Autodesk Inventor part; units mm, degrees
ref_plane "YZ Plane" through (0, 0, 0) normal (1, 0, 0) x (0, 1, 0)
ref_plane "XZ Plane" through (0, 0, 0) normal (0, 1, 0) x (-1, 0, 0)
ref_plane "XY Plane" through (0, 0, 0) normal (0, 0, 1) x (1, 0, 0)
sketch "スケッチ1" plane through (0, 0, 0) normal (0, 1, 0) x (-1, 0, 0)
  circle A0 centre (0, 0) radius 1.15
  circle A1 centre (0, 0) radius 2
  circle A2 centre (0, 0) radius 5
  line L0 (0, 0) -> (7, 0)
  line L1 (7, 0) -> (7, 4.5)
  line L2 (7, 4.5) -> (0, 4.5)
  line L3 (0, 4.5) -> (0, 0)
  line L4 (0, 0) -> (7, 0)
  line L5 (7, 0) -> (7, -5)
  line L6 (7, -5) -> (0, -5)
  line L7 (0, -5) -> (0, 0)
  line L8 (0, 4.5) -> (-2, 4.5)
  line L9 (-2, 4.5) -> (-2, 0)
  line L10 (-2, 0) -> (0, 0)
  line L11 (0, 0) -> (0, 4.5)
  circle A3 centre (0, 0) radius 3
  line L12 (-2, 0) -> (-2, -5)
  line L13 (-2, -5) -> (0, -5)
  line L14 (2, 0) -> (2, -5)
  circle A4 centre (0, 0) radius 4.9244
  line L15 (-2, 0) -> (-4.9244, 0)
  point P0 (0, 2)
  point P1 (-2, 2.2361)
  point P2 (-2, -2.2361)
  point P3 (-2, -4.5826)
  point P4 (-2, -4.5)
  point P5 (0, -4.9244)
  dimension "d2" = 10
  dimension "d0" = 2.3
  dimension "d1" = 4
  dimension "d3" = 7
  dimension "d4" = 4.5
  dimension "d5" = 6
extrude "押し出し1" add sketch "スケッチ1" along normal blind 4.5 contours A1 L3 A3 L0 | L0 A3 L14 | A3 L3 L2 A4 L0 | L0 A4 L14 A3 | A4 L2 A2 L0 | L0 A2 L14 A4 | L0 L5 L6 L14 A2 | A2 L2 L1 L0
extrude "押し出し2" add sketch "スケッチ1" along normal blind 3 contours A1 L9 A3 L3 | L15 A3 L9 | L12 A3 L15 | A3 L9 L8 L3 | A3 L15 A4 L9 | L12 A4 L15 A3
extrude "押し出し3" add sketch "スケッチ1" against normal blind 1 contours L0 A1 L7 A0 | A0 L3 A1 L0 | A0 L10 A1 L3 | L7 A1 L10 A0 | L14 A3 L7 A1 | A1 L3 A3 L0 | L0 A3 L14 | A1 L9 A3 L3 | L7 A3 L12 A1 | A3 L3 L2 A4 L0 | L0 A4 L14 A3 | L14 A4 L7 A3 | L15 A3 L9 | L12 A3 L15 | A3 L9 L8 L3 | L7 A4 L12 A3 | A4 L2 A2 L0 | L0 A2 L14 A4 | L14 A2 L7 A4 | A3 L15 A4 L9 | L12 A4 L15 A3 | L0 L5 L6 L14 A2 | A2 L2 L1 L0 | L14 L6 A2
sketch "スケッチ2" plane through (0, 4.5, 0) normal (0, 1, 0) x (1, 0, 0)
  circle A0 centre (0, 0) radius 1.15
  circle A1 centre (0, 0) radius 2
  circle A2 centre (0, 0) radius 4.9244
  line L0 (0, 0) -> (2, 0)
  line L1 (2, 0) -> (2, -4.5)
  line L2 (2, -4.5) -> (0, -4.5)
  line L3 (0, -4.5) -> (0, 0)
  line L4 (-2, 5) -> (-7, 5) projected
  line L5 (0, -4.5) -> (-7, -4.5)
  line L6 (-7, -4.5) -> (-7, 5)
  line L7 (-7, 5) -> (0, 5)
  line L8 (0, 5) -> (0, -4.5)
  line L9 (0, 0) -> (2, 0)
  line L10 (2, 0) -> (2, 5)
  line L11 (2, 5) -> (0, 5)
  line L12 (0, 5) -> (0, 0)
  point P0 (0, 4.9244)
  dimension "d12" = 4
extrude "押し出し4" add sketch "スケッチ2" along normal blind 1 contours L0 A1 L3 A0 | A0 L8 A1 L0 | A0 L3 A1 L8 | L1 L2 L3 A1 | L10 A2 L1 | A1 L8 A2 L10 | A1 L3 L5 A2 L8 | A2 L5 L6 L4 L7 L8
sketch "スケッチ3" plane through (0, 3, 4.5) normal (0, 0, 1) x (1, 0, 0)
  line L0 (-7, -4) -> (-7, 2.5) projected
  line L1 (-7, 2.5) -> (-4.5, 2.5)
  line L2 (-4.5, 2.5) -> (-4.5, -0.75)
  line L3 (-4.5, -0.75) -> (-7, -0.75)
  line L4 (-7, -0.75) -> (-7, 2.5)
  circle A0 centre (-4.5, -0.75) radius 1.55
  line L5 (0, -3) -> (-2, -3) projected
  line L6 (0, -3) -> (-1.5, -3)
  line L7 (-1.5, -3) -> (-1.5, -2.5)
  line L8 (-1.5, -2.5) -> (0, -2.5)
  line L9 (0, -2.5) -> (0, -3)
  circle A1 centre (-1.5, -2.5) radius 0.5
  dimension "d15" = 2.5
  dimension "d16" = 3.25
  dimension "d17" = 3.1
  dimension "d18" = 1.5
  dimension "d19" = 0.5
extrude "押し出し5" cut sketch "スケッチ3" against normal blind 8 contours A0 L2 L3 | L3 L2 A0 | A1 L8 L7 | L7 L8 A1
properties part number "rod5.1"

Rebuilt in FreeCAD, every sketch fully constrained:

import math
import FreeCAD as App
import Part
import Sketcher
Q = App.Units.Quantity

doc = App.newDocument("Part")
body = doc.addObject("PartDesign::Body", "Body")

sketch1 = body.newObject("Sketcher::SketchObject", "Sketch")
sketch1.AttachmentSupport = (doc.getObject("XZ_Plane"), [""])
sketch1.MapMode = "FlatFace"
sketch1.addGeometry([
    Part.ArcOfCircle(Part.Circle(App.Vector(0, 0, 0), App.Vector(0, 0, 1), 2), math.radians(90), math.radians(180)),
    Part.LineSegment(App.Vector(-2, 0, 0), App.Vector(-2, -5, 0)),
    Part.LineSegment(App.Vector(-2, -5, 0), App.Vector(-7, -5, 0)),
    Part.LineSegment(App.Vector(-7, -5, 0), App.Vector(-7, 4.5, 0)),
    Part.LineSegment(App.Vector(-7, 4.5, 0), App.Vector(0, 4.5, 0)),
    Part.LineSegment(App.Vector(0, 4.5, 0), App.Vector(0, 2, 0)),
], False)
sketch1.addConstraint([
    Sketcher.Constraint("Tangent", 0, 2, 1, 1),
    Sketcher.Constraint("Coincident", 1, 2, 2, 1),
    Sketcher.Constraint("Coincident", 2, 2, 3, 1),
    Sketcher.Constraint("Coincident", 3, 2, 4, 1),
    Sketcher.Constraint("Coincident", 4, 2, 5, 1),
    Sketcher.Constraint("Coincident", 5, 2, 0, 1),
    Sketcher.Constraint("Vertical", 1),
    Sketcher.Constraint("Horizontal", 2),
    Sketcher.Constraint("Vertical", 3),
    Sketcher.Constraint("Horizontal", 4),
    Sketcher.Constraint("Vertical", 5),
    Sketcher.Constraint("Coincident", 0, 3, -1, 1),
    Sketcher.Constraint("PointOnObject", 4, 2, -2),
    Sketcher.Constraint("Equal", 2, 1),
    Sketcher.Constraint("Radius", 0, Q("2 mm")),
    Sketcher.Constraint("DistanceX", 4, 1, 4, 2, Q("7 mm")),
    Sketcher.Constraint("DistanceY", -1, 1, 3, 2, Q("4.5 mm")),
])
pad1 = body.newObject("PartDesign::Pad", "Pad")
pad1.Profile = sketch1
pad1.Length = 4.5
pad1.Reversed = True

sketch2 = body.newObject("Sketcher::SketchObject", "Sketch001")
sketch2.AttachmentSupport = (doc.getObject("XZ_Plane"), [""])
sketch2.MapMode = "FlatFace"
sketch2.addGeometry([
    Part.ArcOfCircle(Part.Circle(App.Vector(0, 0, 0), App.Vector(0, 0, 1), 2), math.radians(0), math.radians(90)),
    Part.LineSegment(App.Vector(0, 2, 0), App.Vector(0, 4.5, 0)),
    Part.LineSegment(App.Vector(0, 4.5, 0), App.Vector(2, 4.5, 0)),
    Part.ArcOfCircle(Part.Circle(App.Vector(0, 0, 0), App.Vector(0, 0, 1), 4.9244), math.radians(-66.037362), math.radians(66.037511)),
    Part.LineSegment(App.Vector(2, -4.499968, 0), App.Vector(2, 0, 0)),
], False)
sketch2.addConstraint([
    Sketcher.Constraint("Coincident", 0, 2, 1, 1),
    Sketcher.Constraint("Coincident", 1, 2, 2, 1),
    Sketcher.Constraint("Coincident", 2, 2, 3, 2),
    Sketcher.Constraint("Coincident", 3, 1, 4, 1),
    Sketcher.Constraint("Tangent", 4, 2, 0, 1),
    Sketcher.Constraint("Vertical", 1),
    Sketcher.Constraint("Horizontal", 2),
    Sketcher.Constraint("Vertical", 4),
    Sketcher.Constraint("Coincident", 0, 3, -1, 1),
    Sketcher.Constraint("Coincident", 3, 3, -1, 1),
    Sketcher.Constraint("PointOnObject", 0, 2, -2),
    Sketcher.Constraint("Vertical", 2, 2, 3, 1),
    Sketcher.Constraint("Radius", 0, Q("2 mm")),
    Sketcher.Constraint("DistanceY", 4, 1, 4, 2, Q("4.5 mm")),
])
pad2 = body.newObject("PartDesign::Pad", "Pad001")
pad2.Profile = sketch2
pad2.Length = 3
pad2.Reversed = True

sketch3 = body.newObject("Sketcher::SketchObject", "Sketch002")
sketch3.AttachmentSupport = (doc.getObject("XZ_Plane"), [""])
sketch3.MapMode = "FlatFace"
sketch3.addGeometry([
    Part.ArcOfCircle(Part.Circle(App.Vector(0, 0, 0), App.Vector(0, 0, 1), 4.9244), math.radians(-90), math.radians(66.037511)),
    Part.LineSegment(App.Vector(0, -4.9244, 0), App.Vector(0, -5, 0)),
    Part.LineSegment(App.Vector(0, -5, 0), App.Vector(-7, -5, 0)),
    Part.LineSegment(App.Vector(-7, -5, 0), App.Vector(-7, 4.5, 0)),
    Part.LineSegment(App.Vector(-7, 4.5, 0), App.Vector(2, 4.5, 0)),
    Part.Circle(App.Vector(0, 0, 0), App.Vector(0, 0, 1), 1.15),
], False)
sketch3.addConstraint([
    Sketcher.Constraint("Coincident", 0, 1, 1, 1),
    Sketcher.Constraint("Coincident", 1, 2, 2, 1),
    Sketcher.Constraint("Coincident", 2, 2, 3, 1),
    Sketcher.Constraint("Coincident", 3, 2, 4, 1),
    Sketcher.Constraint("Coincident", 4, 2, 0, 2),
    Sketcher.Constraint("Vertical", 1),
    Sketcher.Constraint("Horizontal", 2),
    Sketcher.Constraint("Vertical", 3),
    Sketcher.Constraint("Horizontal", 4),
    Sketcher.Constraint("Coincident", 0, 3, -1, 1),
    Sketcher.Constraint("Coincident", 5, 3, -1, 1),
    Sketcher.Constraint("PointOnObject", 0, 1, -2),
    Sketcher.Constraint("Diameter", 5, Q("2.3 mm")),
    Sketcher.Constraint("DistanceX", 2, 2, 2, 1, Q("7 mm")),
    Sketcher.Constraint("DistanceY", -1, 1, 3, 2, Q("4.5 mm")),
    Sketcher.Constraint("DistanceX", 4, 1, 4, 2, Q("9 mm")),
    Sketcher.Constraint("DistanceY", 3, 1, 3, 2, Q("9.5 mm")),
])
pad3 = body.newObject("PartDesign::Pad", "Pad002")
pad3.Profile = sketch3
pad3.Length = 1

sketch4 = body.newObject("Sketcher::SketchObject", "Sketch003")
sketch4.AttachmentSupport = (doc.getObject("XZ_Plane"), [""])
sketch4.MapMode = "FlatFace"
sketch4.AttachmentOffset = App.Placement(App.Vector(0, 0, -4.5), App.Rotation())
sketch4.addGeometry([
    Part.ArcOfCircle(Part.Circle(App.Vector(0, 0, 0), App.Vector(0, 0, 1), 4.9244), math.radians(-90), math.radians(66.037511)),
    Part.LineSegment(App.Vector(0, -4.9244, 0), App.Vector(0, -5, 0)),
    Part.LineSegment(App.Vector(0, -5, 0), App.Vector(-7, -5, 0)),
    Part.LineSegment(App.Vector(-7, -5, 0), App.Vector(-7, 4.5, 0)),
    Part.LineSegment(App.Vector(-7, 4.5, 0), App.Vector(2, 4.5, 0)),
    Part.Circle(App.Vector(0, 0, 0), App.Vector(0, 0, 1), 1.15),
], False)
sketch4.addConstraint([
    Sketcher.Constraint("Coincident", 0, 1, 1, 1),
    Sketcher.Constraint("Coincident", 1, 2, 2, 1),
    Sketcher.Constraint("Coincident", 2, 2, 3, 1),
    Sketcher.Constraint("Coincident", 3, 2, 4, 1),
    Sketcher.Constraint("Coincident", 4, 2, 0, 2),
    Sketcher.Constraint("Vertical", 1),
    Sketcher.Constraint("Horizontal", 2),
    Sketcher.Constraint("Vertical", 3),
    Sketcher.Constraint("Horizontal", 4),
    Sketcher.Constraint("Coincident", 0, 3, -1, 1),
    Sketcher.Constraint("Coincident", 5, 3, -1, 1),
    Sketcher.Constraint("PointOnObject", 0, 1, -2),
    Sketcher.Constraint("Diameter", 5, Q("2.3 mm")),
    Sketcher.Constraint("DistanceX", 2, 2, 2, 1, Q("7 mm")),
    Sketcher.Constraint("DistanceX", 4, 1, 4, 2, Q("9 mm")),
    Sketcher.Constraint("DistanceY", 3, 1, 3, 2, Q("9.5 mm")),
    Sketcher.Constraint("DistanceY", 1, 2, -1, 1, Q("5 mm")),
])
pad4 = body.newObject("PartDesign::Pad", "Pad003")
pad4.Profile = sketch4
pad4.Length = 1
pad4.Reversed = True

sketch5 = body.newObject("Sketcher::SketchObject", "Sketch004")
sketch5.AttachmentSupport = (doc.getObject("XY_Plane"), [""])
sketch5.MapMode = "FlatFace"
sketch5.AttachmentOffset = App.Placement(App.Vector(0, 0, 4.5), App.Rotation())
sketch5.addGeometry([
    Part.Circle(App.Vector(-4.5, 2.25, 0), App.Vector(0, 0, 1), 1.55),
    Part.Circle(App.Vector(-1.5, 0.5, 0), App.Vector(0, 0, 1), 0.5),
], False)
sketch5.addConstraint([
    Sketcher.Constraint("Diameter", 1, Q("1 mm")),
    Sketcher.Constraint("Diameter", 0, Q("3.1 mm")),
    Sketcher.Constraint("DistanceX", 1, 3, -1, 1, Q("1.5 mm")),
    Sketcher.Constraint("DistanceY", -1, 1, 1, 3, Q("0.5 mm")),
    Sketcher.Constraint("DistanceX", 0, 3, 1, 3, Q("3 mm")),
    Sketcher.Constraint("DistanceY", -1, 1, 0, 3, Q("2.25 mm")),
])
pocket1 = body.newObject("PartDesign::Pocket", "Pocket")
pocket1.Profile = sketch5
pocket1.Length = 8

doc.recompute()
